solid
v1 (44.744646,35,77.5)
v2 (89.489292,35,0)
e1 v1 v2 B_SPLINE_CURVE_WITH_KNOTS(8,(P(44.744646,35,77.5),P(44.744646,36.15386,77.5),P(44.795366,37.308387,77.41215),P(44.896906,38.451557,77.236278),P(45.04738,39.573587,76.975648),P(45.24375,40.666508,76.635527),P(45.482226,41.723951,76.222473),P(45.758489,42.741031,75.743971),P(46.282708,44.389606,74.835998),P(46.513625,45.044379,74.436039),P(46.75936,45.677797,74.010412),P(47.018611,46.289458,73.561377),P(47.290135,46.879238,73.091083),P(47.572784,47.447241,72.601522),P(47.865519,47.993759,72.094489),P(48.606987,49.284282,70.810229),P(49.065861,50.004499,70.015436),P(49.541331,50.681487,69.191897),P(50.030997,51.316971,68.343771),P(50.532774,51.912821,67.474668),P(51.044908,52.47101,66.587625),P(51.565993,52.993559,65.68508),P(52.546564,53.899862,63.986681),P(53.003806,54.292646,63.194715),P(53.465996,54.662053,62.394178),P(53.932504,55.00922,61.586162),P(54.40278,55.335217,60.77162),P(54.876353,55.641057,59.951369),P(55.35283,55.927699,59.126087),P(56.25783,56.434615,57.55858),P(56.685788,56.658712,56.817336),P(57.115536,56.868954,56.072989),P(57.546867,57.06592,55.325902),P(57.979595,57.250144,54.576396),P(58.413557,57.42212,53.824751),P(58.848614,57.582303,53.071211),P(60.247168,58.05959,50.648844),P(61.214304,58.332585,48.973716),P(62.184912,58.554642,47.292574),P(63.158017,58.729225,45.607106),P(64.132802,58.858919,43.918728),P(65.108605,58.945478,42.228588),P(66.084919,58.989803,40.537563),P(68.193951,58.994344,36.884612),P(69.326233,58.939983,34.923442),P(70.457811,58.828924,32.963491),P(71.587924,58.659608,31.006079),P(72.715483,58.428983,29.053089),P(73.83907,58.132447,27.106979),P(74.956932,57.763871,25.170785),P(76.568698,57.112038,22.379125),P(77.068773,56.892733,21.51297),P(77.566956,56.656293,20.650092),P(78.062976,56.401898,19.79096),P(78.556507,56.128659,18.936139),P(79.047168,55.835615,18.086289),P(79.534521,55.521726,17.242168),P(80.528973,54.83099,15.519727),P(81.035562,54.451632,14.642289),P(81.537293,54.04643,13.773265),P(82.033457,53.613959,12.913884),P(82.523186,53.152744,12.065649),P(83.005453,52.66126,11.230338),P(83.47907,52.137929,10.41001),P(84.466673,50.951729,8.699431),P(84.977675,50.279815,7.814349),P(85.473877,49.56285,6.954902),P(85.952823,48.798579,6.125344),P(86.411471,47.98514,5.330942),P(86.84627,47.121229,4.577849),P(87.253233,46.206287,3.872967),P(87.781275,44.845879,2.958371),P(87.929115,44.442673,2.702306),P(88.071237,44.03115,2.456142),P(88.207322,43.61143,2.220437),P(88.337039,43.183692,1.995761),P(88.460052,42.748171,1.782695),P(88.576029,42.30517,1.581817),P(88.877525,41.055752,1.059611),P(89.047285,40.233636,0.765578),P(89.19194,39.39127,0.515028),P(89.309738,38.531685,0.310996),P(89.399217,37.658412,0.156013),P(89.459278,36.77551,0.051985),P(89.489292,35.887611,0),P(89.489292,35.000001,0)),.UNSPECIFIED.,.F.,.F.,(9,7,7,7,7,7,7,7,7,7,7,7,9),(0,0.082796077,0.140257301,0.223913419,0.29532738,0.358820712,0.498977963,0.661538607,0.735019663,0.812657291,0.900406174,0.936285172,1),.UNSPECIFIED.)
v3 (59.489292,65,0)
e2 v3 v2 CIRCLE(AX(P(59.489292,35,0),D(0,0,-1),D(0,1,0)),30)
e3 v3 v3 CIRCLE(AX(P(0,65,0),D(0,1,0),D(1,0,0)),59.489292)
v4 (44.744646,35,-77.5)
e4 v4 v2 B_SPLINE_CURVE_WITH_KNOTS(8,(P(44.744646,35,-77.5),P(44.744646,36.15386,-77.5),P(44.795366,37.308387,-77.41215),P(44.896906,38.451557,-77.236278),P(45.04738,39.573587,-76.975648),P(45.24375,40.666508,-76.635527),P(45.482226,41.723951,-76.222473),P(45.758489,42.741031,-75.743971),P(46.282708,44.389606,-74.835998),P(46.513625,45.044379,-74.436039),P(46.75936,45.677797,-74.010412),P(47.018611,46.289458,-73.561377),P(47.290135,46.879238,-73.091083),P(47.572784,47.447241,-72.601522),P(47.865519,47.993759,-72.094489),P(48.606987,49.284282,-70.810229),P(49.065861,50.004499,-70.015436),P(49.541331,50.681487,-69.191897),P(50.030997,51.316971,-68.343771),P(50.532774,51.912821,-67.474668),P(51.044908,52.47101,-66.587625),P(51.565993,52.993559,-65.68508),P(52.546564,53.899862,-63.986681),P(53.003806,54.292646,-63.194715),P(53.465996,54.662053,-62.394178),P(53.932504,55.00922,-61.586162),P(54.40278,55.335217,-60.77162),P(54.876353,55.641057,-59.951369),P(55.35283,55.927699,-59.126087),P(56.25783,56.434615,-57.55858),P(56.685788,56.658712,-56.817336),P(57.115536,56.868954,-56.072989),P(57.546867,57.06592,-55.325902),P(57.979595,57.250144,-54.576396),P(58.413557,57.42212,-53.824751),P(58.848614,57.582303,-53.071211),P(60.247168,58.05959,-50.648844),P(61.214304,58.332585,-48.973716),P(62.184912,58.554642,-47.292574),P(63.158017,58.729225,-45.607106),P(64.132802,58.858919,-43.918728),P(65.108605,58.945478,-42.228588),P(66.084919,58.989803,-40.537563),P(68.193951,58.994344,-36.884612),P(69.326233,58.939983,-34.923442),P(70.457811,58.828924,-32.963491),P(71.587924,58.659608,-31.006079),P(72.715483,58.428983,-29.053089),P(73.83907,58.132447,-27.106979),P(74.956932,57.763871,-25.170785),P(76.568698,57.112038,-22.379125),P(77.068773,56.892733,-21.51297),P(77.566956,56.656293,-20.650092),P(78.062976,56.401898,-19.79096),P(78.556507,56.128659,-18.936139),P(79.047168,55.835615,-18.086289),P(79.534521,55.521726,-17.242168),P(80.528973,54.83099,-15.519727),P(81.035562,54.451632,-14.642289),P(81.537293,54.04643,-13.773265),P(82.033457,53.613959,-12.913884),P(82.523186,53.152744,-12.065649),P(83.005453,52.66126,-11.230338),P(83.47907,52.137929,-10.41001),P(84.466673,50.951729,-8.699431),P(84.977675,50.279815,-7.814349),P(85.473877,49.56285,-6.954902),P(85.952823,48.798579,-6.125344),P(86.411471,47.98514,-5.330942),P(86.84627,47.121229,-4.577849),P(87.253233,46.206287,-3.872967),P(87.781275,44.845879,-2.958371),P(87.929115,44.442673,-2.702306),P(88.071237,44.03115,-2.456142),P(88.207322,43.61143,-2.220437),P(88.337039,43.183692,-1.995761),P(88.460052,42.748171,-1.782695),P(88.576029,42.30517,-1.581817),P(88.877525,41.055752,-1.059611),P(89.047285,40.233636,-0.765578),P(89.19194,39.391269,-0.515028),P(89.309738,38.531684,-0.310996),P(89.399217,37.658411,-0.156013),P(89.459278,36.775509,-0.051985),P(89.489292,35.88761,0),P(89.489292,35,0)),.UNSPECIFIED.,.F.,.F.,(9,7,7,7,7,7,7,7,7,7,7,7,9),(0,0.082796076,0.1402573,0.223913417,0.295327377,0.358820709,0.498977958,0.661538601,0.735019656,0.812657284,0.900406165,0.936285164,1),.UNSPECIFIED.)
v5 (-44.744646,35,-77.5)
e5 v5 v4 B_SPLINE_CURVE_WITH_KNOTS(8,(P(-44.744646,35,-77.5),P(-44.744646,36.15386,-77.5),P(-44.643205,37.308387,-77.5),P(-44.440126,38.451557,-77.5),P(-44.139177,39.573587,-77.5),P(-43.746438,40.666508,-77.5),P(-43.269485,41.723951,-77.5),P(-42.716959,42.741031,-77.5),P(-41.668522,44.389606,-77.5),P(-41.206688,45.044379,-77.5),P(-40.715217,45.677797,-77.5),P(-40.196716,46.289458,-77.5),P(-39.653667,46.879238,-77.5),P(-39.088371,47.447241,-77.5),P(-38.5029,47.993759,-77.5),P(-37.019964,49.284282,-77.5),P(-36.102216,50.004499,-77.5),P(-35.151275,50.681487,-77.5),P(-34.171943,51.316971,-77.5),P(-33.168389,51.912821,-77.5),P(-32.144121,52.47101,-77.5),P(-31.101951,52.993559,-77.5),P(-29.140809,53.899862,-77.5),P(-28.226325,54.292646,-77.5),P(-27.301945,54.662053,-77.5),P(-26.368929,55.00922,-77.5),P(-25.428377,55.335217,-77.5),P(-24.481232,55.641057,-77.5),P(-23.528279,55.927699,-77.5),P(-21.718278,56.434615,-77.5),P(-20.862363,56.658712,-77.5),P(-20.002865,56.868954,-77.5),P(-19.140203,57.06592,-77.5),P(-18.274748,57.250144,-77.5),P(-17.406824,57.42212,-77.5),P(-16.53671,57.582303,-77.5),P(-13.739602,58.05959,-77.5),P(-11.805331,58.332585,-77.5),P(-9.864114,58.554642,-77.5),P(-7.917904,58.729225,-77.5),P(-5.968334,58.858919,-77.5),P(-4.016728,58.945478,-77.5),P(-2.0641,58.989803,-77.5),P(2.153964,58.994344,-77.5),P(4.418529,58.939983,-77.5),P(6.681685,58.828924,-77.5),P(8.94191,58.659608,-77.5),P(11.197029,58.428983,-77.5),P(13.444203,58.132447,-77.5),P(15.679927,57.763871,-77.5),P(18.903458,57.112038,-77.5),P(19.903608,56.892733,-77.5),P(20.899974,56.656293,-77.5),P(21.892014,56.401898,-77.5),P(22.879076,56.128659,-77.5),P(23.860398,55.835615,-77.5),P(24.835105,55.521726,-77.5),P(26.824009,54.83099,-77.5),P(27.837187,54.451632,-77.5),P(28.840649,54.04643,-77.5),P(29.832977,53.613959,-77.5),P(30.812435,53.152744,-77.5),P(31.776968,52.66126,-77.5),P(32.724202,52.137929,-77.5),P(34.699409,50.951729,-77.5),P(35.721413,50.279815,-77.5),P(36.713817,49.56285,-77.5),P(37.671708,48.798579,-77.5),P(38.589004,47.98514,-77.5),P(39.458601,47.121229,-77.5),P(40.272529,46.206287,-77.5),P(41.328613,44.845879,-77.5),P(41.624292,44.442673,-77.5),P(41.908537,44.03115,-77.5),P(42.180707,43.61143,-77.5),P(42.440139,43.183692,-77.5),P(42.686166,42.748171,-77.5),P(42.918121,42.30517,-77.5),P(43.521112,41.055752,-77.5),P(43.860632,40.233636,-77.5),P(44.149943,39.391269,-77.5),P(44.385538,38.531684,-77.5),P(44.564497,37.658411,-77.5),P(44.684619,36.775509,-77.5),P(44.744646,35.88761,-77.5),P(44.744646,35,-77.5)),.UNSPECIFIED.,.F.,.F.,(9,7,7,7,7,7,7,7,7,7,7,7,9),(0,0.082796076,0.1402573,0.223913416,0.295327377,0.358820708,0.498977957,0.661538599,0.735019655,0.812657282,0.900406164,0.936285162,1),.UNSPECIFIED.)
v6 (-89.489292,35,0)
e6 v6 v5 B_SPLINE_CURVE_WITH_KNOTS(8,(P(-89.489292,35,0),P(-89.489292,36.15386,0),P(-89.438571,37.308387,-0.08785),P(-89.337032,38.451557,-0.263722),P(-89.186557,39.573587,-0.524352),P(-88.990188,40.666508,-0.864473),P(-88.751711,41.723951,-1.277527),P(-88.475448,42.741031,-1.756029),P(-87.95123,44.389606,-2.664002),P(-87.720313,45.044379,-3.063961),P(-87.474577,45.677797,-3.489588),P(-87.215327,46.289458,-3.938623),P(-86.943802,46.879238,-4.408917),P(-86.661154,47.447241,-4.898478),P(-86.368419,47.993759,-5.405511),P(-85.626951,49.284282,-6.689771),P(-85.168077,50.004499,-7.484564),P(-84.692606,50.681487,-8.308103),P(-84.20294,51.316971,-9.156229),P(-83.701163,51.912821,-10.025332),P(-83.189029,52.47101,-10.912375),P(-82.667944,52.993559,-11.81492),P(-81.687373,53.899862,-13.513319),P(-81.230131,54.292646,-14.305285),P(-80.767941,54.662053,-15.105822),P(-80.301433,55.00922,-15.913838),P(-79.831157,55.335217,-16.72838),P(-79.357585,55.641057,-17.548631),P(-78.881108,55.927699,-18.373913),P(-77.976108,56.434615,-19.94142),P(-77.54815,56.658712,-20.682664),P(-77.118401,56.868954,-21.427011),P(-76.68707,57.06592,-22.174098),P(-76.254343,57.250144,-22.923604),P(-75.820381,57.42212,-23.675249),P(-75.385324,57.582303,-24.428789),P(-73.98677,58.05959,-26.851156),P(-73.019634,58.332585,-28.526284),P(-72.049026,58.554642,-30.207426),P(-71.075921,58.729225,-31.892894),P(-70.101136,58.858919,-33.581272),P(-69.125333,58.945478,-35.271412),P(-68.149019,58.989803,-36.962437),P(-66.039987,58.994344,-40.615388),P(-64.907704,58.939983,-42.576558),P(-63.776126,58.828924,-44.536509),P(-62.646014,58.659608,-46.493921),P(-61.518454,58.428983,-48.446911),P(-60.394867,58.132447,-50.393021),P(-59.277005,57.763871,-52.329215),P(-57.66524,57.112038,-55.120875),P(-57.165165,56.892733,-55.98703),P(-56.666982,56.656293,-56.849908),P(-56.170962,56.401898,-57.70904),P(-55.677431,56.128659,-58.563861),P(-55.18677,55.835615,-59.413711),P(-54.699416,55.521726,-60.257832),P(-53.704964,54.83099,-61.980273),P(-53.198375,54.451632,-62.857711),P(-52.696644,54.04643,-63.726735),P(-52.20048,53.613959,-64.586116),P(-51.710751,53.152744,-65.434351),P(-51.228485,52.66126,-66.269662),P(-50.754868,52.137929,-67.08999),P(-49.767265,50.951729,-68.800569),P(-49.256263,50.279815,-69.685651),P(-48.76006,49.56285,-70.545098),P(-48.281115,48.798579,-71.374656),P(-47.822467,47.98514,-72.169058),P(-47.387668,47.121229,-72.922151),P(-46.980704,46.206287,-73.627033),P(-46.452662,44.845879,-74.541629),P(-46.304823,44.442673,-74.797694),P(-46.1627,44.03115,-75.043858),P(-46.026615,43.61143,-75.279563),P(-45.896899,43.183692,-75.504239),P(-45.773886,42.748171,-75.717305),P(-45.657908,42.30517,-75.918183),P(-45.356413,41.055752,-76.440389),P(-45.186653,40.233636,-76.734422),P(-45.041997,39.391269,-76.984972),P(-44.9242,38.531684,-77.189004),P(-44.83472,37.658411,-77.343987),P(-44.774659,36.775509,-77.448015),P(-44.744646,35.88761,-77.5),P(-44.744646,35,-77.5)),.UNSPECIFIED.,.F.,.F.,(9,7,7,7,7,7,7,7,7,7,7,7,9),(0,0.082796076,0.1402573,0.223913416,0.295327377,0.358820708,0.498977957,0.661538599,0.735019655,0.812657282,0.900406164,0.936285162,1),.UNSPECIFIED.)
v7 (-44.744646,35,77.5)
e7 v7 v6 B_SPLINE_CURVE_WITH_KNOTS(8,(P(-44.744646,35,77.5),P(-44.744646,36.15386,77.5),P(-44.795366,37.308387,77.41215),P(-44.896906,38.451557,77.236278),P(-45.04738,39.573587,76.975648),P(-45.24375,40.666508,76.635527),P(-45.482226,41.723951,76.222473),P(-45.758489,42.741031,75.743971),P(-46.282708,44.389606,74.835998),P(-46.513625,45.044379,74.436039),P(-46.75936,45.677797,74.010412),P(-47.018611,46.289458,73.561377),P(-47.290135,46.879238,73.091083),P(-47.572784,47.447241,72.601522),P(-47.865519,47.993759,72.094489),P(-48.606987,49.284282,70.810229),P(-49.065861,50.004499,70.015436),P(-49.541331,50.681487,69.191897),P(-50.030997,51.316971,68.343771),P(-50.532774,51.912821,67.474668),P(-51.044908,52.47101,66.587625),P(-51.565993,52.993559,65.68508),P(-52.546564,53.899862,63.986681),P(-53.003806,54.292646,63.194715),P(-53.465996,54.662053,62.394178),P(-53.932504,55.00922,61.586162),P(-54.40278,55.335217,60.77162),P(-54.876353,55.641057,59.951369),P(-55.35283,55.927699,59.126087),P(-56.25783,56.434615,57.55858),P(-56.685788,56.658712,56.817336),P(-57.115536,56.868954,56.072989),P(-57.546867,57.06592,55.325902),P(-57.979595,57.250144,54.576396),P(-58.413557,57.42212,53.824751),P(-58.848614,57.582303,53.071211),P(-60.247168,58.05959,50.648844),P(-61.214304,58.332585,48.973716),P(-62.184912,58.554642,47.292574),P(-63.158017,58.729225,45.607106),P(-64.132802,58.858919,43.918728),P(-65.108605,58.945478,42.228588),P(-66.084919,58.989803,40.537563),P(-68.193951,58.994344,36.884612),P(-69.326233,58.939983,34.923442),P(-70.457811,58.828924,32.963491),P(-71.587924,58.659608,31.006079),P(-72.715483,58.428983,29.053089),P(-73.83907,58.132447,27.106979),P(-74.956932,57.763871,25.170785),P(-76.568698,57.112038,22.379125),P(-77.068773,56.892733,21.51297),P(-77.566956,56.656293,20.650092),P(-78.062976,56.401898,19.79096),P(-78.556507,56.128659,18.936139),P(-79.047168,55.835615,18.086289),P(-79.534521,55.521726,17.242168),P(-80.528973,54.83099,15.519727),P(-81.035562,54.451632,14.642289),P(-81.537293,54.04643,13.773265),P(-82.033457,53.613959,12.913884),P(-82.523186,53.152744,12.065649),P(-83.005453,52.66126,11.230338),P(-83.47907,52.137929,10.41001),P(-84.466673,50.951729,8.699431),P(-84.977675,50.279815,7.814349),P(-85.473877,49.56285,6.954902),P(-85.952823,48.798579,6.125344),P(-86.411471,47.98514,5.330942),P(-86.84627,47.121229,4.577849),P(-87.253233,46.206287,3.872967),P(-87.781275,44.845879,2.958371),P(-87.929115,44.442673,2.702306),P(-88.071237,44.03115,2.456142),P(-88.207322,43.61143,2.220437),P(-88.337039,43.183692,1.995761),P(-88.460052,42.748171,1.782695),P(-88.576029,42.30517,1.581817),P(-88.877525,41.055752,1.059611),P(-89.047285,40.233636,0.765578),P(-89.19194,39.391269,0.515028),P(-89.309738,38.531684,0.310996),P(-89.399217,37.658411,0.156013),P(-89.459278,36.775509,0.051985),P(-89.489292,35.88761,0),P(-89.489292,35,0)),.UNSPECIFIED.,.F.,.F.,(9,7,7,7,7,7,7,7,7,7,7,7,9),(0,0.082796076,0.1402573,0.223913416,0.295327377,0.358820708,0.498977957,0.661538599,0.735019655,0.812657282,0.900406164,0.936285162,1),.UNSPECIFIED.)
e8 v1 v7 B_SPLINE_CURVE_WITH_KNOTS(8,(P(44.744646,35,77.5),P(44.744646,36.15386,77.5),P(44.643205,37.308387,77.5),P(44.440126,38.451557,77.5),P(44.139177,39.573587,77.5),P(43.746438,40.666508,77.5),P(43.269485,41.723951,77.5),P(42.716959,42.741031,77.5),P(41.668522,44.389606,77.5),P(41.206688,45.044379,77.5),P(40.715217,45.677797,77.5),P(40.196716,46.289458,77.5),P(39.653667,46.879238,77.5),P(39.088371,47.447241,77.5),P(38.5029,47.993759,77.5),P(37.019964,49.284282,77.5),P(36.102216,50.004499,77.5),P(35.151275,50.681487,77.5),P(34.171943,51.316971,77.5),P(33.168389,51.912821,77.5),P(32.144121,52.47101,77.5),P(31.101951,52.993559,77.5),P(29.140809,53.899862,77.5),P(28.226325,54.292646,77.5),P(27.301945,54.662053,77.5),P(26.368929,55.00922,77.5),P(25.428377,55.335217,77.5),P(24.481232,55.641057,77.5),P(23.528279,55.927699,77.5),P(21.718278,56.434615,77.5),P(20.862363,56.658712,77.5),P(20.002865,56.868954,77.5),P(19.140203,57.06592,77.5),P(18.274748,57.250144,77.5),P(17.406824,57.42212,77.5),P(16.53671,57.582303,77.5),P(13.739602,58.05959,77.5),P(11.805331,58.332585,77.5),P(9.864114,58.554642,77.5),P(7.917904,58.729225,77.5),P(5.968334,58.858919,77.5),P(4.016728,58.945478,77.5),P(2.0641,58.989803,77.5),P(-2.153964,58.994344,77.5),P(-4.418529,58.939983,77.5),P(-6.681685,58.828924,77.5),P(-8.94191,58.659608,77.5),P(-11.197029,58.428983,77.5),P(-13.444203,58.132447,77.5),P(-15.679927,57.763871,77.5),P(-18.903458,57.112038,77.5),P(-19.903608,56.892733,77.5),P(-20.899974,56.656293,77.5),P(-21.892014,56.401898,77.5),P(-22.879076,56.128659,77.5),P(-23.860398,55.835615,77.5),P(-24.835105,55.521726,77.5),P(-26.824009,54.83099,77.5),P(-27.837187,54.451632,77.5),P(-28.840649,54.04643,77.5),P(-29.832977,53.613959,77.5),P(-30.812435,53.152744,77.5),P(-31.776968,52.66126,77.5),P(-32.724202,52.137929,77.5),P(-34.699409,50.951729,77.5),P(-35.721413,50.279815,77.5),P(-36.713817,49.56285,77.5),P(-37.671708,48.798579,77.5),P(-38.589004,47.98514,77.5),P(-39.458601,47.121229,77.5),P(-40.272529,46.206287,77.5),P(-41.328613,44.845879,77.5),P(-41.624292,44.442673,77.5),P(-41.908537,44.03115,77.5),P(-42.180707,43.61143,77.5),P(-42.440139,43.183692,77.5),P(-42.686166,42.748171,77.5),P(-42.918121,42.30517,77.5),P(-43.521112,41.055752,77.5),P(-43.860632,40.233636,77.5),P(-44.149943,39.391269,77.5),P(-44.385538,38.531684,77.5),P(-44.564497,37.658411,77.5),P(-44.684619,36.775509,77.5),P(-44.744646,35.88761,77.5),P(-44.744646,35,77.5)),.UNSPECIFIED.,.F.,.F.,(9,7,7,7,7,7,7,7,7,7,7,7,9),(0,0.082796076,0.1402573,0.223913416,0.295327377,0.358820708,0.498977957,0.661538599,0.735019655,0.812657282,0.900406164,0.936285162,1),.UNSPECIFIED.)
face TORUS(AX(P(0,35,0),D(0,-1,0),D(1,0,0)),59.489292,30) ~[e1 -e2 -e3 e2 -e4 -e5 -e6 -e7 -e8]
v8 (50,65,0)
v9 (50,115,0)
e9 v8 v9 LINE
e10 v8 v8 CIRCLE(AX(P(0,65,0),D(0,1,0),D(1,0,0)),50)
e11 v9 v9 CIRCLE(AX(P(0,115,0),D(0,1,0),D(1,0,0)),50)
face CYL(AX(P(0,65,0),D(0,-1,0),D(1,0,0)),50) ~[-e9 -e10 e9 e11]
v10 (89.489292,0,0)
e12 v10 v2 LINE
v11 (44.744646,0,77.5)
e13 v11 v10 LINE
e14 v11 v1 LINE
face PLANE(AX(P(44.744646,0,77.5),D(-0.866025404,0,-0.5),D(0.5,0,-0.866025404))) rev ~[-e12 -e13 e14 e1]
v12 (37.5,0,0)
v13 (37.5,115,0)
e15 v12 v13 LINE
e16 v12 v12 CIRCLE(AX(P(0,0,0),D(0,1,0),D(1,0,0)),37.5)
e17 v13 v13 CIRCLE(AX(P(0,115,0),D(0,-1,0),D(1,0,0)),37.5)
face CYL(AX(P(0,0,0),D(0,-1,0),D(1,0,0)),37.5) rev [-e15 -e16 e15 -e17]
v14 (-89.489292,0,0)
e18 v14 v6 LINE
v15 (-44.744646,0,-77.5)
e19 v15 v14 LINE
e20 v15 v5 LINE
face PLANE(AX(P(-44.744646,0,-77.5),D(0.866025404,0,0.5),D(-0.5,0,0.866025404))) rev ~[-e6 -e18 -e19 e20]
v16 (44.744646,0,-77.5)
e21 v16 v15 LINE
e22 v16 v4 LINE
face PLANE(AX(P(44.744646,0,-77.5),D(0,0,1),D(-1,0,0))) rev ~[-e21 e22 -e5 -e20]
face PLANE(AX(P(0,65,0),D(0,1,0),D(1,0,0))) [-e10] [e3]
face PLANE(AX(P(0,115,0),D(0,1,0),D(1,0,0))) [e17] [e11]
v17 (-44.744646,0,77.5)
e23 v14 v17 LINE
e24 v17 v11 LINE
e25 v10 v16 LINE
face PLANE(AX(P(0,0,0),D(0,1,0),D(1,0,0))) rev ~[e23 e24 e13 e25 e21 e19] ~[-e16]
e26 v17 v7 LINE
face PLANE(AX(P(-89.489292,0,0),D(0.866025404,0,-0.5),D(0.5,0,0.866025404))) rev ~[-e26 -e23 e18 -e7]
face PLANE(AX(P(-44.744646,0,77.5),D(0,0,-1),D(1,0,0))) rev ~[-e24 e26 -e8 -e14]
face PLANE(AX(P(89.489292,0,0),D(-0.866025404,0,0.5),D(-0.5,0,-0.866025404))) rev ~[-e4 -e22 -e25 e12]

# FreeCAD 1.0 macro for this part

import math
import FreeCAD as App
import Part
import Sketcher
from FreeCAD import Vector
Q = App.Units.Quantity


def add_polygon(sketch, points):
    """Adds a closed chain of lines whose ends are joined by coincident constraints."""
    first, n = sketch.GeometryCount, len(points)
    for a, b in zip(points, points[1:] + points[:1]):
        sketch.addGeometry(Part.LineSegment(App.Vector(*a, 0), App.Vector(*b, 0)), False)
    for i in range(n):
        sketch.addConstraint(Sketcher.Constraint("Coincident", first + i, 2, first + (i + 1) % n, 1))

doc = App.newDocument("Part")
params = doc.addObject("Spreadsheet::Sheet", "Params")
for row, (alias, value) in enumerate([
    ("pad1_length", "65 mm"),
    ("sketch2_diameter", "100 mm"),
    ("pad2_length", "50 mm"),
    ("sketch3_diameter", "75 mm"),
    ("sketch4_radius", "30 mm"),
    ("groove_angle", "360 deg"),
], start=1):
    params.set(f"A{row}", alias)
    params.set(f"B{row}", "=" + value)
    params.setAlias(f"B{row}", alias)

body = doc.addObject("PartDesign::Body", "Body")

# Sketch on XZ plane
sketch1 = body.newObject("Sketcher::SketchObject", "Sketch")
sketch1.AttachmentSupport = (doc.getObject("XZ_Plane"), [""])
sketch1.MapMode = "FlatFace"
add_polygon(sketch1, [(89, 0), (45, -78), (-45, -78), (-89, 0), (-45, 78), (45, 78)])  # lines 0-5
sketch1.addConstraint([
    Sketcher.Constraint("Horizontal", 1),
    Sketcher.Constraint("Horizontal", 4),
    Sketcher.Constraint("Symmetric", 0, 2, 3, 2, -1, 1),
    Sketcher.Constraint("Symmetric", 2, 2, 5, 2, -1, 1),
    Sketcher.Constraint("PointOnObject", 2, 2, -1),
    Sketcher.Constraint("Parallel", 2, 5),
    Sketcher.Constraint("Vertical", 1, 2, 3, 2),
    Sketcher.Constraint("Angle", 0, Q("-120 deg")),
    Sketcher.Constraint("DistanceY", 1, 2, 3, 2, 155.0),
    Sketcher.Constraint("DistanceX", 1, 2, 1, 1, 89.489292),
])
pad1 = body.newObject("PartDesign::Pad", "Pad")
pad1.Profile = sketch1
pad1.setExpression("Length", "Params.pad1_length")
pad1.Reversed = True

# Sketch on XZ plane
sketch2 = body.newObject("Sketcher::SketchObject", "Sketch001")
sketch2.AttachmentSupport = (doc.getObject("XZ_Plane"), [""])
sketch2.MapMode = "FlatFace"
sketch2.AttachmentOffset = App.Placement(Vector(0, 0, -65), App.Rotation())
sketch2.addGeometry(Part.Circle(Vector(0, 0, 0), Vector(0, 0, 1), 50), False)
sketch2.addConstraint([
    Sketcher.Constraint("Coincident", 0, 3, -1, 1),
    Sketcher.Constraint("Diameter", 0, 100.0),
])
sketch2.setExpression("Constraints[1]", "Params.sketch2_diameter")
pad2 = body.newObject("PartDesign::Pad", "Pad001")
pad2.Profile = sketch2
pad2.setExpression("Length", "Params.pad2_length")
pad2.Reversed = True

# Sketch on XZ plane
sketch3 = body.newObject("Sketcher::SketchObject", "Sketch002")
sketch3.AttachmentSupport = (doc.getObject("XZ_Plane"), [""])
sketch3.MapMode = "FlatFace"
sketch3.addGeometry(Part.Circle(Vector(0, 0, 0), Vector(0, 0, 1), 38), False)
sketch3.addConstraint([
    Sketcher.Constraint("Coincident", 0, 3, -1, 1),
    Sketcher.Constraint("Diameter", 0, 75.0),
])
sketch3.setExpression("Constraints[1]", "Params.sketch3_diameter")
pocket1 = body.newObject("PartDesign::Pocket", "Pocket")
pocket1.Profile = sketch3
pocket1.Type = "ThroughAll"
pocket1.Midplane = True

# Sketch on XY plane
sketch4 = body.newObject("Sketcher::SketchObject", "Sketch003")
sketch4.AttachmentSupport = (doc.getObject("XY_Plane"), [""])
sketch4.MapMode = "FlatFace"
sketch4.addGeometry([
    Part.LineSegment(Vector(89, 35, 0), Vector(89, 65, 0)),
    Part.LineSegment(Vector(89, 65, 0), Vector(59, 65, 0)),
    Part.ArcOfCircle(Part.Circle(Vector(59, 35, 0), Vector(0, 0, 1), 30), math.radians(0), math.radians(90)),
], False)
sketch4.addConstraint([
    Sketcher.Constraint("Coincident", 0, 2, 1, 1),
    Sketcher.Constraint("Tangent", 1, 2, 2, 2),
    Sketcher.Constraint("Tangent", 2, 1, 0, 1),
    Sketcher.Constraint("Vertical", 0),
    Sketcher.Constraint("Horizontal", 1),
    Sketcher.Constraint("Radius", 2, 30.0),
    Sketcher.Constraint("DistanceY", -1, 1, 2, 3, 35.0),
    Sketcher.Constraint("DistanceX", -1, 1, 2, 3, 59.489292),
])
sketch4.setExpression("Constraints[5]", "Params.sketch4_radius")
groove = body.newObject("PartDesign::Groove", "Groove")
groove.Profile = sketch4
groove.ReferenceAxis = (sketch4, ["V_Axis"])
groove.setExpression("Angle", "Params.groove_angle")

doc.recompute()
